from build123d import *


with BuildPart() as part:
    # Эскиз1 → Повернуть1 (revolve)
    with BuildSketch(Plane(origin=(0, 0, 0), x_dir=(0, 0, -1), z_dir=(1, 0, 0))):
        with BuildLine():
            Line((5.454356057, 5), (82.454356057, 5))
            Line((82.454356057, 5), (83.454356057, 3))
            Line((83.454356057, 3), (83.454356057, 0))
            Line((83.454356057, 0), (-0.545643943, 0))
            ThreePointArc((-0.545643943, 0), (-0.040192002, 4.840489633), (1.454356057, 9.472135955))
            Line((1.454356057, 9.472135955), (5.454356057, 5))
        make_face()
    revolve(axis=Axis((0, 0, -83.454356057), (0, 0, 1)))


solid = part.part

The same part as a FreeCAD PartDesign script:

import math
import FreeCAD as App
import Part
import Sketcher

doc = App.newDocument("Part")
params = doc.addObject("Spreadsheet::Sheet", "Params")
for row, (alias, value) in enumerate([
    ("sketch1_width", "3 mm"),
    ("sketch1_height", "77 mm"),
    ("sketch1_height2", "84 mm"),
    ("sketch1_length", "6 mm"),
    ("revolution_angle", "360 deg"),
], start=1):
    params.set(f"A{row}", alias)
    params.set(f"B{row}", "=" + value)
    params.setAlias(f"B{row}", alias)

body = doc.addObject("PartDesign::Body", "Body")

sketch1 = body.newObject("Sketcher::SketchObject", "Sketch")
sketch1.AttachmentSupport = (doc.getObject("YZ_Plane"), [""])
sketch1.MapMode = "FlatFace"
sketch1.addGeometry([
    Part.LineSegment(App.Vector(5, -82.5, 0), App.Vector(5, -5.5, 0)),
    Part.LineSegment(App.Vector(5, -5.5, 0), App.Vector(9.5, -1.5, 0)),
    Part.ArcOfCircle(Part.Circle(App.Vector(0, -22.9, 0), App.Vector(0, 0, 1), 23.4), math.radians(66), math.radians(90)),
    Part.LineSegment(App.Vector(0, 0.5, 0), App.Vector(0, -83.5, 0)),
    Part.LineSegment(App.Vector(0, -83.5, 0), App.Vector(3, -83.5, 0)),
    Part.LineSegment(App.Vector(3, -83.5, 0), App.Vector(5, -82.5, 0)),
], False)
sketch1.addConstraint([
    Sketcher.Constraint("Coincident", 0, 2, 1, 1),
    Sketcher.Constraint("Coincident", 1, 2, 2, 1),
    Sketcher.Constraint("Coincident", 2, 2, 3, 1),
    Sketcher.Constraint("Coincident", 3, 2, 4, 1),
    Sketcher.Constraint("Coincident", 4, 2, 5, 1),
    Sketcher.Constraint("Coincident", 5, 2, 0, 1),
    Sketcher.Constraint("Vertical", 0),
    Sketcher.Constraint("Vertical", 3),
    Sketcher.Constraint("Horizontal", 4),
    Sketcher.Constraint("PointOnObject", 2, 3, -2),
    Sketcher.Constraint("PointOnObject", 2, 2, -2),
    Sketcher.Constraint("DistanceX", 4, 1, 4, 2, 3.0),
    Sketcher.Constraint("DistanceY", 0, 1, 0, 2, 77.0),
    Sketcher.Constraint("DistanceY", 3, 2, 3, 1, 84.0),
    Sketcher.Constraint("Distance", 1, 6.0),
    Sketcher.Constraint("DistanceX", -1, 1, 0, 2, 5.0),
    Sketcher.Constraint("DistanceY", 0, 2, 1, 2, 4.0),
    Sketcher.Constraint("DistanceY", 0, 2, 2, 2, 6.0),
    Sketcher.Constraint("DistanceY", 2, 3, -1, 1, 22.884696),
])
sketch1.setExpression("Constraints[11]", "Params.sketch1_width")
sketch1.setExpression("Constraints[12]", "Params.sketch1_height")
sketch1.setExpression("Constraints[13]", "Params.sketch1_height2")
sketch1.setExpression("Constraints[14]", "Params.sketch1_length")
revolution = body.newObject("PartDesign::Revolution", "Revolution")
revolution.Profile = sketch1
revolution.ReferenceAxis = (sketch1, ["V_Axis"])
revolution.setExpression("Angle", "Params.revolution_angle")

doc.recompute()
